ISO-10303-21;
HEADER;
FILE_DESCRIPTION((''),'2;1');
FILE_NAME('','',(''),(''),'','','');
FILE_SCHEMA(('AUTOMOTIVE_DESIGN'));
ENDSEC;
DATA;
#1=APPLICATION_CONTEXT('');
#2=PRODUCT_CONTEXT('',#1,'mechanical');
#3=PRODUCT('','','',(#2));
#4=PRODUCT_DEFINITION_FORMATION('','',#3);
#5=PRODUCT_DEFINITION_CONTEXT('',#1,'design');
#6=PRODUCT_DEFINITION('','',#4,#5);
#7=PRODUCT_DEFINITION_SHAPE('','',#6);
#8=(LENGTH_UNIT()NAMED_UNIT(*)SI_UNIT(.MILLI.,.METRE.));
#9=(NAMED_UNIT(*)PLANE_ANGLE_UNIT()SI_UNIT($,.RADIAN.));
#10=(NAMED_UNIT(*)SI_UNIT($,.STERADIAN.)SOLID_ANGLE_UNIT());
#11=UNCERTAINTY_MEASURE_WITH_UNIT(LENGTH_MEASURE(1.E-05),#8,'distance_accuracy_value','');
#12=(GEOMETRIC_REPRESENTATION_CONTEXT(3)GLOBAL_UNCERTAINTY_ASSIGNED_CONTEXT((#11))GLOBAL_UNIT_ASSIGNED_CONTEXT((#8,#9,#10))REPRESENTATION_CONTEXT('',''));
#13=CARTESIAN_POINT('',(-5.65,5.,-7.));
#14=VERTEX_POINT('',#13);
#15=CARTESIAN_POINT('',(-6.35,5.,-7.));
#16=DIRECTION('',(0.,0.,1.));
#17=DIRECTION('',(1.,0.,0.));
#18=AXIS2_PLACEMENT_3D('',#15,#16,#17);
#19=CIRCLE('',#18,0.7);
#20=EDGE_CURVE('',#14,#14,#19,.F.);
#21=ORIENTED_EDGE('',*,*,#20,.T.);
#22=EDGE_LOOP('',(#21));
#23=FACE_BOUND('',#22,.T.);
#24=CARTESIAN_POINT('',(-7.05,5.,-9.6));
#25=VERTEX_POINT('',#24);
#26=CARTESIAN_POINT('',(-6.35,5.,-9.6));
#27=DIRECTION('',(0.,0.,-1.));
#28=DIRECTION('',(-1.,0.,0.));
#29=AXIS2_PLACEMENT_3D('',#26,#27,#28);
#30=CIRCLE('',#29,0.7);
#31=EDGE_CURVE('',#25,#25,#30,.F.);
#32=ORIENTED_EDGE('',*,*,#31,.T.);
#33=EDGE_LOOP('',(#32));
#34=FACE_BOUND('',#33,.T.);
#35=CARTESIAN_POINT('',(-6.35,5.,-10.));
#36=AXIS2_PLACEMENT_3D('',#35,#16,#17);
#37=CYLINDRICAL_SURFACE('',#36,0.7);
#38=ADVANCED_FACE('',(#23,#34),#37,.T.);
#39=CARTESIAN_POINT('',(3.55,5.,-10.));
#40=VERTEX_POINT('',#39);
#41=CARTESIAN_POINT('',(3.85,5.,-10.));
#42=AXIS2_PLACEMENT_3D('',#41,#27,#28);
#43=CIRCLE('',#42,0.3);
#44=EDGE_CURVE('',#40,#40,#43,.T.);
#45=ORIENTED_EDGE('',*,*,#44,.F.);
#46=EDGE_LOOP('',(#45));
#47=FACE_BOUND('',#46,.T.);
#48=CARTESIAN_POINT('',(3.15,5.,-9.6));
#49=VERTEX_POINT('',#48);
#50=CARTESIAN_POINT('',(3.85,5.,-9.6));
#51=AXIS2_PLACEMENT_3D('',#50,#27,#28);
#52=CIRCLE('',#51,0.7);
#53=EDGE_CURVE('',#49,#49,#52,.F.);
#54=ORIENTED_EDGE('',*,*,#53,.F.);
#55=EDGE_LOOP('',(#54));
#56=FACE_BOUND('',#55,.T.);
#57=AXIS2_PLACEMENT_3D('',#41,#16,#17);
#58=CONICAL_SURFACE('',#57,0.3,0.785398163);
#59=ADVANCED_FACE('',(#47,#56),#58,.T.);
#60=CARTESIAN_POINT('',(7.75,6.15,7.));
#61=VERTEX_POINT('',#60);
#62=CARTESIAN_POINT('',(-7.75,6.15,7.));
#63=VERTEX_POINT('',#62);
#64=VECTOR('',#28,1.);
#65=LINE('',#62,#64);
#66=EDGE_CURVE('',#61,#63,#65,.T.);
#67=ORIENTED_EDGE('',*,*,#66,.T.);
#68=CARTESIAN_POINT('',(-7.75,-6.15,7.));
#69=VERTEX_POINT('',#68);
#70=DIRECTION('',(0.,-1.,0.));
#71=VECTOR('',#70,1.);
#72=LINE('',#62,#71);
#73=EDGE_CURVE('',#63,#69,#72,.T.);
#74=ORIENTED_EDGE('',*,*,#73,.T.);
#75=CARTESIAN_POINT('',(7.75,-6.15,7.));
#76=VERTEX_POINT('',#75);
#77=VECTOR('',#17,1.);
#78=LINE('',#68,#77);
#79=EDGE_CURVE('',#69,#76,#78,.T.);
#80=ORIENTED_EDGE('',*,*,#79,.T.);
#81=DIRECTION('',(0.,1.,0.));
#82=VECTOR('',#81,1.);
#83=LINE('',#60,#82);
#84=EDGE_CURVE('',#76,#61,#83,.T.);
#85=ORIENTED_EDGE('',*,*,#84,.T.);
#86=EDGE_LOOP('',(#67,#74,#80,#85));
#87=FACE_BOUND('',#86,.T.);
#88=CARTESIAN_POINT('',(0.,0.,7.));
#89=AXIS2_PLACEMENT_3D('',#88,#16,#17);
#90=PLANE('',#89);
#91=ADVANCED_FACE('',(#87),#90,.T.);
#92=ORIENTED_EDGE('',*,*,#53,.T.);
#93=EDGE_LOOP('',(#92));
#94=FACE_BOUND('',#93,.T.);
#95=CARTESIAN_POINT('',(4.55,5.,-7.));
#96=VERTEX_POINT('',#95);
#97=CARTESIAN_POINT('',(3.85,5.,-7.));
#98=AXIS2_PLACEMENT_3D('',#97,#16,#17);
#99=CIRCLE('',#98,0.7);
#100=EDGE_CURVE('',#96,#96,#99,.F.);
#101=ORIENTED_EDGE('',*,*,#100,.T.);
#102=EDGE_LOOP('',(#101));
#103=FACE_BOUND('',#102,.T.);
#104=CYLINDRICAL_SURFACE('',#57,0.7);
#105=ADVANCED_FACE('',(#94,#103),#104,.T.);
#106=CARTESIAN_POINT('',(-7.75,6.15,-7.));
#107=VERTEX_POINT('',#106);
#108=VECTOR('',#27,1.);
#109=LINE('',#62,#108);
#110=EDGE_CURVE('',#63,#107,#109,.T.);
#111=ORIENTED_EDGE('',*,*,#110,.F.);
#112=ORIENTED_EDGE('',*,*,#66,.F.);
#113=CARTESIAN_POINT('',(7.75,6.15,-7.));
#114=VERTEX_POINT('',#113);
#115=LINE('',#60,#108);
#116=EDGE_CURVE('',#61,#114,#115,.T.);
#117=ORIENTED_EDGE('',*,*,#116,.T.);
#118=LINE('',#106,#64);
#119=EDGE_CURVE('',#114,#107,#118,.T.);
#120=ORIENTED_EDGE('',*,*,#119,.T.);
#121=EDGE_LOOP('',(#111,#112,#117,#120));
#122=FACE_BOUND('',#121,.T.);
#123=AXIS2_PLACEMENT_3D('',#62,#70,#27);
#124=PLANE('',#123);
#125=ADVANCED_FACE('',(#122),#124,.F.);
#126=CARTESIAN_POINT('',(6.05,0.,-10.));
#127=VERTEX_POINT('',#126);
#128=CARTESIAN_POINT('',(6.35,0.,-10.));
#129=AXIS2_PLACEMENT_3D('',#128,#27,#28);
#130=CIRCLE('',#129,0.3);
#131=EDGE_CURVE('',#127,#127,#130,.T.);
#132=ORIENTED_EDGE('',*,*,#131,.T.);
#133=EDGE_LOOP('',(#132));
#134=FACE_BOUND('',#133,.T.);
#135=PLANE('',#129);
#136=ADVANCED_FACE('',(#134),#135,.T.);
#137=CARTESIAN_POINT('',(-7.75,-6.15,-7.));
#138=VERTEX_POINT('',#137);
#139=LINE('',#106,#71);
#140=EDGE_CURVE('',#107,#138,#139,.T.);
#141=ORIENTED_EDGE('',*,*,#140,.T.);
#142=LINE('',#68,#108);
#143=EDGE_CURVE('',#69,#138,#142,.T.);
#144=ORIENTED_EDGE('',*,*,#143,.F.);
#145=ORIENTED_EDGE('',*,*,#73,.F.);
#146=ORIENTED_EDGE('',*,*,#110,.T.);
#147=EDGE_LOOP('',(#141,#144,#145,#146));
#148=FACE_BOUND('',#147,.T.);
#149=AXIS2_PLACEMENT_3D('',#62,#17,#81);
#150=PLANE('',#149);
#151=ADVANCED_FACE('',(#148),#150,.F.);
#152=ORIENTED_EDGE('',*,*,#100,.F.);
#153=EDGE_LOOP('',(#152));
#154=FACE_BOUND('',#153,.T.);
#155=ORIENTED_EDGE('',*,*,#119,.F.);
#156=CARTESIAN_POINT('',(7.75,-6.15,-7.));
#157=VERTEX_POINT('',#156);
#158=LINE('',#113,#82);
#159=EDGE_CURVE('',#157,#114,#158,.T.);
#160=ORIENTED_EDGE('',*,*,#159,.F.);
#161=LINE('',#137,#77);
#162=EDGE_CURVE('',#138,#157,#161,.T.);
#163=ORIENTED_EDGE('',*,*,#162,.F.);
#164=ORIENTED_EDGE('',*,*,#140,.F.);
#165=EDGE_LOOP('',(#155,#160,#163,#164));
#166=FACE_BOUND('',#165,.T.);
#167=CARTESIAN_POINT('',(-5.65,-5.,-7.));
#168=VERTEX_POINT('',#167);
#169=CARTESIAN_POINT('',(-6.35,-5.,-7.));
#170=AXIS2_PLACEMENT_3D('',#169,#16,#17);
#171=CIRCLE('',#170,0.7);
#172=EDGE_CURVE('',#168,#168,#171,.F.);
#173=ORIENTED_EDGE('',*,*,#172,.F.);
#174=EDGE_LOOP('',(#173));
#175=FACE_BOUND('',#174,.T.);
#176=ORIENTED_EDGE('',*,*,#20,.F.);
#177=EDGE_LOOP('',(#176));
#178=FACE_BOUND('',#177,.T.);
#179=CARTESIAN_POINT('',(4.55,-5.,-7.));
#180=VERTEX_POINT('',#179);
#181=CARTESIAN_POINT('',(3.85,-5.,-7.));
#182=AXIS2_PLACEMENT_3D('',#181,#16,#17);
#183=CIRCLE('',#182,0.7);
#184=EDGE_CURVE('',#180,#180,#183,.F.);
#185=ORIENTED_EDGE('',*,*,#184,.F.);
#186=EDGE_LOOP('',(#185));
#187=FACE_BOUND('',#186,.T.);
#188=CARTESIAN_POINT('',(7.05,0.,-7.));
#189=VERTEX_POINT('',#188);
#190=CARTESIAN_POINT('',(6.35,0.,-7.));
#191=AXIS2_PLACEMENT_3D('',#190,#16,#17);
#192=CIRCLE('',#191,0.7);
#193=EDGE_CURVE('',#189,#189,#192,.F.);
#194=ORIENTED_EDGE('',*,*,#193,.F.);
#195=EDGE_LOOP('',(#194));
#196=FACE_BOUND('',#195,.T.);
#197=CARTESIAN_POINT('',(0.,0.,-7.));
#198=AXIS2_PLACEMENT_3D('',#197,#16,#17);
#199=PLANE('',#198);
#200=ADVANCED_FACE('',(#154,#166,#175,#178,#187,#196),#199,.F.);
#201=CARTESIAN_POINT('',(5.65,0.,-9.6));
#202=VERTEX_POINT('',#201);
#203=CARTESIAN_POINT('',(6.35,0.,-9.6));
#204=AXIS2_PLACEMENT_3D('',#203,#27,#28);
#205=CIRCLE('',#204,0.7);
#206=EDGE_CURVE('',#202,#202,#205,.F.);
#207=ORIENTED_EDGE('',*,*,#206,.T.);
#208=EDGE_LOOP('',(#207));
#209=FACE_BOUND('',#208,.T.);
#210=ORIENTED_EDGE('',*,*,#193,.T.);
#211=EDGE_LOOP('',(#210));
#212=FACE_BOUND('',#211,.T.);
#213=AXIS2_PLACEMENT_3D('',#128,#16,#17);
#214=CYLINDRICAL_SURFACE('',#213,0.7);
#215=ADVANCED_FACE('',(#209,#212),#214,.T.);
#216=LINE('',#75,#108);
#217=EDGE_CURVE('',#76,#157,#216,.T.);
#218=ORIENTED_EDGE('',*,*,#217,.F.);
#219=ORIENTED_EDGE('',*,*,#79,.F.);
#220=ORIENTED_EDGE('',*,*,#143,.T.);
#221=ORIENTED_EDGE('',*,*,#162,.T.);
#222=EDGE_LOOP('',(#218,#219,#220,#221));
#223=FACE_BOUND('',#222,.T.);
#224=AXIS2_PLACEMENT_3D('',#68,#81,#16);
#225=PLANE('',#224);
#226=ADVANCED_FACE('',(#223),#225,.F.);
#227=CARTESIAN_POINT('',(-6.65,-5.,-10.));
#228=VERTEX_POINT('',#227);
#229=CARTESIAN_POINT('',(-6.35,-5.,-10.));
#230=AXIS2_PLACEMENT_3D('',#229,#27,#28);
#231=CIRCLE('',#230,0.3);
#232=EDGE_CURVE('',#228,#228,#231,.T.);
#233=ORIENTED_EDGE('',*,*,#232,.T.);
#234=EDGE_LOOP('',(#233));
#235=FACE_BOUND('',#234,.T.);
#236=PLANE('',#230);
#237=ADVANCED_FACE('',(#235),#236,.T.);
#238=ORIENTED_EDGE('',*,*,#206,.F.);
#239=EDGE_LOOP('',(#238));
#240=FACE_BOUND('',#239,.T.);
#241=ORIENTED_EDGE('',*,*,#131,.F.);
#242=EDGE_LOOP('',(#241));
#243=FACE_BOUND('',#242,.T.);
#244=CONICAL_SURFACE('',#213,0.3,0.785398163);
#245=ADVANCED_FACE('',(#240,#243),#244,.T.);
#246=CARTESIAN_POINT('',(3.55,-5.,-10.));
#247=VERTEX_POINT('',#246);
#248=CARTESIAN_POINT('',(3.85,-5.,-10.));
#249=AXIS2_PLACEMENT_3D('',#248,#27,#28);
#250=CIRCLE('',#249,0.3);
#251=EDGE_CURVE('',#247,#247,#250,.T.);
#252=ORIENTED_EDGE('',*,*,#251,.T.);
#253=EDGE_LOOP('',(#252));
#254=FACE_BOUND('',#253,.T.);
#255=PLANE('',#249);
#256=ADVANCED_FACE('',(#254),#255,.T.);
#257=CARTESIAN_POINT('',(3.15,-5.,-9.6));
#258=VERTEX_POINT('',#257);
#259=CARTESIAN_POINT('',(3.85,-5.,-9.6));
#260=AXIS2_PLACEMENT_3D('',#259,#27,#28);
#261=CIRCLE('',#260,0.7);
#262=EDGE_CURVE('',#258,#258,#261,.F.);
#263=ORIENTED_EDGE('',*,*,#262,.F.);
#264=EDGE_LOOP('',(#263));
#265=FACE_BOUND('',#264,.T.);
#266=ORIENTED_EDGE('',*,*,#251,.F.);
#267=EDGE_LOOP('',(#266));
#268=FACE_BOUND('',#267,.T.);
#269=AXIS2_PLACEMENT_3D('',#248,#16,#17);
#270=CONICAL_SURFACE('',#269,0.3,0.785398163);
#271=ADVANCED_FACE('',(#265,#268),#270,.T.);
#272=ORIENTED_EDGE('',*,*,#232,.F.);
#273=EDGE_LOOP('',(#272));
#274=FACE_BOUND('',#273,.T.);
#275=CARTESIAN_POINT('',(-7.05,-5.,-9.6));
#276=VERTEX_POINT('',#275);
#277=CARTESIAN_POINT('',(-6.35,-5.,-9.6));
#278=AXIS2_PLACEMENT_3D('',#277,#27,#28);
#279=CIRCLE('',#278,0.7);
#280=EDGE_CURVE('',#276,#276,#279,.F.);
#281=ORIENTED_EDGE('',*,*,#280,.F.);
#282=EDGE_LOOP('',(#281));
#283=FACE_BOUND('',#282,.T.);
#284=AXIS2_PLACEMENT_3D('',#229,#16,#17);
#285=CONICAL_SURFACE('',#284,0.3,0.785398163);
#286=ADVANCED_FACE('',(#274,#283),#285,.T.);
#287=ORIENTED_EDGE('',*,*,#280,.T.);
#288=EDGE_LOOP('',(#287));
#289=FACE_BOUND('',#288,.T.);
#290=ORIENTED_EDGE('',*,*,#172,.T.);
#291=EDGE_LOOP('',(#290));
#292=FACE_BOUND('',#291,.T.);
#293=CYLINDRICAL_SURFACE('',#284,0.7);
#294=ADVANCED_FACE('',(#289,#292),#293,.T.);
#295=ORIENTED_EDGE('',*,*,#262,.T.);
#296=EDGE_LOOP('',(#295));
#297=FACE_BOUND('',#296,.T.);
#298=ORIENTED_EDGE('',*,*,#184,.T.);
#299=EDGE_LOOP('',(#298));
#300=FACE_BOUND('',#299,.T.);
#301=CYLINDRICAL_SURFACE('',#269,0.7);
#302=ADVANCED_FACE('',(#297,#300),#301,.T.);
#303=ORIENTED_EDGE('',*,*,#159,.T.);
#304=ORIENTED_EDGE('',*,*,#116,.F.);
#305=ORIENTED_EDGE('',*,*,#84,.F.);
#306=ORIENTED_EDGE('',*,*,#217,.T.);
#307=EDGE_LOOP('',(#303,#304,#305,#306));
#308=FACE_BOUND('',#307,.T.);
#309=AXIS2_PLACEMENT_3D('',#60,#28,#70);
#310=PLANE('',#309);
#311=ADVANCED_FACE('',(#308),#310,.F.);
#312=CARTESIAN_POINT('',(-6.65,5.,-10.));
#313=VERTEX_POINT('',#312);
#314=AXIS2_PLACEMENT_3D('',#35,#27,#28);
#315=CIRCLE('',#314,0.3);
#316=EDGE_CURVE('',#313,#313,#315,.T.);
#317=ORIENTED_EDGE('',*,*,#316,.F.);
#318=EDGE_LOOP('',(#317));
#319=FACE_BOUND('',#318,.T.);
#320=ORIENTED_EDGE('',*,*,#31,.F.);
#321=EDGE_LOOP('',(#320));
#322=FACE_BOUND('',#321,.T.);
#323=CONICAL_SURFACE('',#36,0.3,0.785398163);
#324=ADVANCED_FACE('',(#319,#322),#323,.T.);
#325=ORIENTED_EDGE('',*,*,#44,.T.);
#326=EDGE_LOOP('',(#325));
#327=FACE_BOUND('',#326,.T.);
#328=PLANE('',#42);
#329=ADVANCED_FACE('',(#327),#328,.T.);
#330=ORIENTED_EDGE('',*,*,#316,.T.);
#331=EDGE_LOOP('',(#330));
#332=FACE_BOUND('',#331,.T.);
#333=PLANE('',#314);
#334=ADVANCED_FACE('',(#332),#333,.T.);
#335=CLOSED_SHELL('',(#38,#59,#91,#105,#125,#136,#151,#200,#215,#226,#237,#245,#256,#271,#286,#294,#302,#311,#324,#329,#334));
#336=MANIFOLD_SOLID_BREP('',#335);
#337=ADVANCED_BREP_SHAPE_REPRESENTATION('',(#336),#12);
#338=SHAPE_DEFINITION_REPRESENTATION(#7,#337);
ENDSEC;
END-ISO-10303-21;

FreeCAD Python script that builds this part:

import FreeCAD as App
import Part
import Sketcher
from FreeCAD import Vector


def edges_at(feature, points):
    """Names of the edges that pass closest to the given points."""
    edges = feature.Shape.Edges
    near = lambda p: min(range(len(edges)), key=lambda i: edges[i].distToShape(Part.Vertex(*p))[0])
    return sorted({f"Edge{near(p) + 1}" for p in points})

doc = App.newDocument("Part")
body = doc.addObject("PartDesign::Body", "Body")

# Sketch on XY plane
sketch1 = doc.addObject("Sketcher::SketchObject", "Sketch")
body.addObject(sketch1)
sketch1.AttachmentSupport = (doc.XY_Plane, [""])
sketch1.MapMode = "FlatFace"
sketch1.addGeometry([
    Part.LineSegment(Vector(-8, 6, 0), Vector(-8, -6, 0)),
    Part.LineSegment(Vector(-8, -6, 0), Vector(8, -6, 0)),
    Part.LineSegment(Vector(8, -6, 0), Vector(8, 6, 0)),
    Part.LineSegment(Vector(8, 6, 0), Vector(-8, 6, 0)),
], False)
sketch1.addConstraint([
    Sketcher.Constraint("Coincident", 0, 2, 1, 1),
    Sketcher.Constraint("Coincident", 1, 2, 2, 1),
    Sketcher.Constraint("Coincident", 2, 2, 3, 1),
    Sketcher.Constraint("Coincident", 3, 2, 0, 1),
    Sketcher.Constraint("Vertical", 0),
    Sketcher.Constraint("Horizontal", 1),
    Sketcher.Constraint("Vertical", 2),
    Sketcher.Constraint("Horizontal", 3),
    Sketcher.Constraint("Symmetric", 0, 2, 2, 2, -1, 1),
    Sketcher.Constraint("DistanceX", 1, 1, 1, 2, 15.5),
    Sketcher.Constraint("DistanceY", 0, 2, 0, 1, 12.3),
])
pad1 = doc.addObject("PartDesign::Pad", "Pad")
body.addObject(pad1)
pad1.Profile = sketch1
pad1.Length = 14
pad1.Midplane = True

# Sketch on XY plane
sketch2 = doc.addObject("Sketcher::SketchObject", "Sketch001")
body.addObject(sketch2)
sketch2.AttachmentSupport = (doc.XY_Plane, [""])
sketch2.MapMode = "FlatFace"
sketch2.AttachmentOffset = App.Placement(Vector(0, 0, -7), App.Rotation())
sketch2.addGeometry([
    Part.Circle(Vector(3.9, 5, 0), Vector(0, 0, 1), 0.7),  # 0
    Part.Circle(Vector(-6.3, 5, 0), Vector(0, 0, 1), 0.7),  # 1
    Part.Circle(Vector(-6.3, -5, 0), Vector(0, 0, 1), 0.7),  # 2
    Part.Circle(Vector(3.9, -5, 0), Vector(0, 0, 1), 0.7),  # 3
    Part.Circle(Vector(6.3, 0, 0), Vector(0, 0, 1), 0.7),  # 4
], False)
sketch2.addConstraint([
    Sketcher.Constraint("Equal", 0, 1),
    Sketcher.Constraint("Equal", 1, 2),
    Sketcher.Constraint("Equal", 2, 3),
    Sketcher.Constraint("Equal", 3, 4),
    Sketcher.Constraint("Symmetric", 1, 3, 2, 3, -1),
    Sketcher.Constraint("Symmetric", 0, 3, 3, 3, -1),
    Sketcher.Constraint("PointOnObject", 4, 3, -1),
    Sketcher.Constraint("Horizontal", 0, 3, 1, 3),
    Sketcher.Constraint("Diameter", 0, 1.4),
    Sketcher.Constraint("DistanceY", -1, 1, 0, 3, 5.0),
    Sketcher.Constraint("DistanceX", 1, 3, 0, 3, 10.2),
    Sketcher.Constraint("DistanceX", 0, 3, 4, 3, 2.5),
    Sketcher.Constraint("DistanceX", -1, 1, 0, 3, 3.85),
])
pad2 = doc.addObject("PartDesign::Pad", "Pad001")
body.addObject(pad2)
pad2.Profile = sketch2
pad2.Length = 3
pad2.Reversed = True
doc.recompute()

chamfer = doc.addObject("PartDesign::Chamfer", "Chamfer")
body.addObject(chamfer)
chamfer.Base = (pad2, edges_at(pad2, [
    (3.15, 5, -10),
    (-7.05, 5, -10),
    (-7.05, -5, -10),
    (3.15, -5, -10),
    (5.65, 0, -10),
]))
chamfer.Size = 0.4

doc.recompute()
